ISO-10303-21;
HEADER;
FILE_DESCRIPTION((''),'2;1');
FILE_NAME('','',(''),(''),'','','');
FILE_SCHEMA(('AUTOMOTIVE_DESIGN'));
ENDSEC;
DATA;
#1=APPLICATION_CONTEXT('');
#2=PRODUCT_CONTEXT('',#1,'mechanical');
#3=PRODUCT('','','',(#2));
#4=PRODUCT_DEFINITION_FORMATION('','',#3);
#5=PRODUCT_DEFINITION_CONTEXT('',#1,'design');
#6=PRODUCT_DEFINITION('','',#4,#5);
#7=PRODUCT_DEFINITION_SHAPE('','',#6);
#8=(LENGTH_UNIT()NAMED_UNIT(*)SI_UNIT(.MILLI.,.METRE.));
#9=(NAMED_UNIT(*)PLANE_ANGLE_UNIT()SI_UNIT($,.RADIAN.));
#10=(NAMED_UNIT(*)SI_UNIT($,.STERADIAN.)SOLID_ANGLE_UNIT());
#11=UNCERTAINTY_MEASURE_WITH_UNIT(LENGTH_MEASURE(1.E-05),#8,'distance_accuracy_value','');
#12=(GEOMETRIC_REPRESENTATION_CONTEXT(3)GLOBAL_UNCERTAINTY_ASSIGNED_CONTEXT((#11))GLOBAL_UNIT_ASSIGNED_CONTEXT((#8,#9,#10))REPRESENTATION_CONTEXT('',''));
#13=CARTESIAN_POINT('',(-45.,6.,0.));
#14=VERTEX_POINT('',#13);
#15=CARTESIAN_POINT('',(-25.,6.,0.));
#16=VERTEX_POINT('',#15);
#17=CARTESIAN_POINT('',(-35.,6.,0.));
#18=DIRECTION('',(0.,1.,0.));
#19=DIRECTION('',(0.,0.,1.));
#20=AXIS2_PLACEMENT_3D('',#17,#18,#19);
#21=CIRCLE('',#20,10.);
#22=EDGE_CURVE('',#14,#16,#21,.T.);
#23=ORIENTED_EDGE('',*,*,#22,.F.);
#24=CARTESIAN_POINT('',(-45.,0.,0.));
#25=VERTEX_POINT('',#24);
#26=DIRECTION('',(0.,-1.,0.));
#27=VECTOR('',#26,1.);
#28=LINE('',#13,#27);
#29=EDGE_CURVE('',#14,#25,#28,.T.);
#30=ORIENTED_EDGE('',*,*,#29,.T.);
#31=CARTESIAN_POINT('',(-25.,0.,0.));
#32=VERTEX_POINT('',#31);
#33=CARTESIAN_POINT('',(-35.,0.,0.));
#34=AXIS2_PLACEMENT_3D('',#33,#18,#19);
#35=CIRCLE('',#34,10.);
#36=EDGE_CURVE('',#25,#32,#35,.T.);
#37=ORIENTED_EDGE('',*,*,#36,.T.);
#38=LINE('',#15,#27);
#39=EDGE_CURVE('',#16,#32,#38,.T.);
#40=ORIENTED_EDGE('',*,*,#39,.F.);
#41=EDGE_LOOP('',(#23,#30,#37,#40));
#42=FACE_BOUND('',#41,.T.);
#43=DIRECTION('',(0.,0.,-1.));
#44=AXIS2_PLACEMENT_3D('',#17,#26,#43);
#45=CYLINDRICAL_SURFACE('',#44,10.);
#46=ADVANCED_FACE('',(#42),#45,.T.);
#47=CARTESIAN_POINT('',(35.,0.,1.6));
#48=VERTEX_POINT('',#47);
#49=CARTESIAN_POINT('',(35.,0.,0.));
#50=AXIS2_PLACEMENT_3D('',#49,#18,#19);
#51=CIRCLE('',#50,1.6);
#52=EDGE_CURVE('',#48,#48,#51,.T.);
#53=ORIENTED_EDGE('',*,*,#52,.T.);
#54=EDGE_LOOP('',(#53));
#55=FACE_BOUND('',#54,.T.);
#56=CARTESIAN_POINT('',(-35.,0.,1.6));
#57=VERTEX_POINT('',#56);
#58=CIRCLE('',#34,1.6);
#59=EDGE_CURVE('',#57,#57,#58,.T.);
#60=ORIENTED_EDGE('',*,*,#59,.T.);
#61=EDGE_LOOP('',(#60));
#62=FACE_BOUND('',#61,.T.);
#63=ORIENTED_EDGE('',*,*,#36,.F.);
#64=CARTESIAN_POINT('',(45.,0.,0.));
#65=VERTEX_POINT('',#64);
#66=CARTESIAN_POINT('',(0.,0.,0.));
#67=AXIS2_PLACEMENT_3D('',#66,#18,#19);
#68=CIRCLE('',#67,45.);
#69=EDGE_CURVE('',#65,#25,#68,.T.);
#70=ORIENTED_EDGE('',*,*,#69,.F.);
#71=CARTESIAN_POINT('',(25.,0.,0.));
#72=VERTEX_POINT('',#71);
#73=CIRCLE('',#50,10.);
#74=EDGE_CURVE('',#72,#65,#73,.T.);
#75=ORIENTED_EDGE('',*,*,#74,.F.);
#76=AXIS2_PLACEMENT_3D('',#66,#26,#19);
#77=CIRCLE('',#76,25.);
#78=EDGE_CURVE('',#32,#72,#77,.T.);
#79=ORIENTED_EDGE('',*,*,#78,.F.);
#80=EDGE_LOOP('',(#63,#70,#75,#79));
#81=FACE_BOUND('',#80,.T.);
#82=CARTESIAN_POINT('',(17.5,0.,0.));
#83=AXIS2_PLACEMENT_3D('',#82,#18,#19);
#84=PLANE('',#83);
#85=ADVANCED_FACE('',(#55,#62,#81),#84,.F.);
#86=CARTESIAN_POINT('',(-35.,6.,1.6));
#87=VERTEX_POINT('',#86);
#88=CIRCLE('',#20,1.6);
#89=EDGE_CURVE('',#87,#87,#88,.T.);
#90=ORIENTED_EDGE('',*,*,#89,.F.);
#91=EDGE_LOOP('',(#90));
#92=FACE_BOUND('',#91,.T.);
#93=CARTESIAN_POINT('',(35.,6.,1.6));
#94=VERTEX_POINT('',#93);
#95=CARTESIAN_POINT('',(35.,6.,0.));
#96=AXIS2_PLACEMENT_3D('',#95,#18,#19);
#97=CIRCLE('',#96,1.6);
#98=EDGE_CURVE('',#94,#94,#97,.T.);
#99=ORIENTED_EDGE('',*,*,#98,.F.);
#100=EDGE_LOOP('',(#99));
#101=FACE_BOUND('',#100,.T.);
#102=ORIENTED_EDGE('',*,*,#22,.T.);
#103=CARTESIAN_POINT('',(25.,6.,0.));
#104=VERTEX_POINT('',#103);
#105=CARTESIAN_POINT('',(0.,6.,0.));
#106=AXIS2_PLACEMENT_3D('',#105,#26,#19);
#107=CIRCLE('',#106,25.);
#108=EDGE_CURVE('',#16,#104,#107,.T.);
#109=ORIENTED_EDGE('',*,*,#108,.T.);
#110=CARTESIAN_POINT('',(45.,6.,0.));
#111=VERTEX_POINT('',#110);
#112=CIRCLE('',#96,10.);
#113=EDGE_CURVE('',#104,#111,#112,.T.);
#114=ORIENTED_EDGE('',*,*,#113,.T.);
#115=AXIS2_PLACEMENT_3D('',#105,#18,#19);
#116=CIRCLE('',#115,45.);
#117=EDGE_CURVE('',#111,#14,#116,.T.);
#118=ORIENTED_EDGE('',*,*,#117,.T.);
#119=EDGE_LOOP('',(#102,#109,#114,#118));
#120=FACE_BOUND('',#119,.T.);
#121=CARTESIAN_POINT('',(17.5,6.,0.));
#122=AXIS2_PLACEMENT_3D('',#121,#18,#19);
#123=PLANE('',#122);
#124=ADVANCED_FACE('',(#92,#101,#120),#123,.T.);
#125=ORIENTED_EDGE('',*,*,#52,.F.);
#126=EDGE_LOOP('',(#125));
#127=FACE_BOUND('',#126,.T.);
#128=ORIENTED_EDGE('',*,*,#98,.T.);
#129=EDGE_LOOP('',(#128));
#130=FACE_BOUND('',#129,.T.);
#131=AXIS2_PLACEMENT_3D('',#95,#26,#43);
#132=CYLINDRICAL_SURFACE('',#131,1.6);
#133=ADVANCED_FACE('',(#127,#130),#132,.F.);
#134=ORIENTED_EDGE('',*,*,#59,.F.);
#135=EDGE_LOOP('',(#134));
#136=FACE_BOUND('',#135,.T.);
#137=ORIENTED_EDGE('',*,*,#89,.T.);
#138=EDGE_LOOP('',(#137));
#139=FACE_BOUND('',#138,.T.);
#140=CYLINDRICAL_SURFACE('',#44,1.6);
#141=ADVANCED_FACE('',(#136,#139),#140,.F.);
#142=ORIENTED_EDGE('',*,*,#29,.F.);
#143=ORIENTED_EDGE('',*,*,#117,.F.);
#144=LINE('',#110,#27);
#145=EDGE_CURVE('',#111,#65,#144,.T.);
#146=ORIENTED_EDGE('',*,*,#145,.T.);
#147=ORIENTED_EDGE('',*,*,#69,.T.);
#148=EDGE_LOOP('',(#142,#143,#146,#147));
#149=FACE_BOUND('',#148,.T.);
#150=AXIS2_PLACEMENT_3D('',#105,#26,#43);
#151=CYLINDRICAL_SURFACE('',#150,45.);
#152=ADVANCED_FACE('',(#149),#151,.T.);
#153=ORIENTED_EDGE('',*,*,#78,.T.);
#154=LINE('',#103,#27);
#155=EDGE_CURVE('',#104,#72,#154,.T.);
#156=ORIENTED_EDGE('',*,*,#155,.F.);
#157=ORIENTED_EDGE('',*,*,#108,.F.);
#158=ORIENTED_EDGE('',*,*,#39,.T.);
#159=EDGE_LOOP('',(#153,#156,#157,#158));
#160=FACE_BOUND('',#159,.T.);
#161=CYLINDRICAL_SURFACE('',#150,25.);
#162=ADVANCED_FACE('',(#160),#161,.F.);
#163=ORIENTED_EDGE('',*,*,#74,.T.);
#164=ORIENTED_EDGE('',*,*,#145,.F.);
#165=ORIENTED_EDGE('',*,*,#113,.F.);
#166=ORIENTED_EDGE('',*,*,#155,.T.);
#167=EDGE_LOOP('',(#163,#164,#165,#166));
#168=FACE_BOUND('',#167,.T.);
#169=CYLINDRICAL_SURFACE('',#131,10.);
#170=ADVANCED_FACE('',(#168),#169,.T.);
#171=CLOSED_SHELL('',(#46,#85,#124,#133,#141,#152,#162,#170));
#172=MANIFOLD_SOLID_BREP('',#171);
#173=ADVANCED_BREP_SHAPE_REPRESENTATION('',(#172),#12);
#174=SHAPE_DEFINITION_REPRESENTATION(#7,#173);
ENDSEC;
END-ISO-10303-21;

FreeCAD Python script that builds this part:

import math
import FreeCAD as App
import Part
import Sketcher
Q = App.Units.Quantity

doc = App.newDocument("Part")
body = doc.addObject("PartDesign::Body", "Body")

# Sketch on XZ plane
sketch1 = body.newObject("Sketcher::SketchObject", "Sketch")
sketch1.AttachmentSupport = (doc.getObject("XZ_Plane"), [""])
sketch1.MapMode = "FlatFace"
sketch1.addGeometry(Part.ArcOfCircle(Part.Circle(App.Vector(0, 0, 0), App.Vector(0, 0, 1), 25), math.radians(180), math.radians(360)), False)
sketch1.addGeometry(Part.ArcOfCircle(Part.Circle(App.Vector(35, 0, 0), App.Vector(0, 0, 1), 10), math.radians(0), math.radians(180)), False)
sketch1.addGeometry(Part.ArcOfCircle(Part.Circle(App.Vector(0, 0, 0), App.Vector(0, 0, 1), 45), math.radians(180), math.radians(360)), False)
sketch1.addGeometry(Part.ArcOfCircle(Part.Circle(App.Vector(-35, 0, 0), App.Vector(0, 0, 1), 10), math.radians(0), math.radians(180)), False)
sketch1.addGeometry(Part.Circle(App.Vector(35, 0, 0), App.Vector(0, 0, 1), 1.6), False)
sketch1.addGeometry(Part.Circle(App.Vector(-35, 0, 0), App.Vector(0, 0, 1), 1.6), False)
sketch1.addConstraint(Sketcher.Constraint("Tangent", 0, 2, 1, 2))
sketch1.addConstraint(Sketcher.Constraint("Tangent", 1, 1, 2, 2))
sketch1.addConstraint(Sketcher.Constraint("Tangent", 2, 1, 3, 2))
sketch1.addConstraint(Sketcher.Constraint("Tangent", 3, 1, 0, 1))
sketch1.addConstraint(Sketcher.Constraint("Coincident", 0, 3, -1, 1))
sketch1.addConstraint(Sketcher.Constraint("Coincident", 2, 3, -1, 1))
sketch1.addConstraint(Sketcher.Constraint("Coincident", 4, 3, 1, 3))
sketch1.addConstraint(Sketcher.Constraint("Coincident", 5, 3, 3, 3))
sketch1.addConstraint(Sketcher.Constraint("Equal", 4, 5))
sketch1.addConstraint(Sketcher.Constraint("PointOnObject", 1, 3, -1))
sketch1.addConstraint(Sketcher.Constraint("PointOnObject", 3, 3, -1))
sketch1.addConstraint(Sketcher.Constraint("Radius", 0, Q("25 mm")))
sketch1.addConstraint(Sketcher.Constraint("Radius", 1, Q("10 mm")))
sketch1.addConstraint(Sketcher.Constraint("Diameter", 4, Q("3.2 mm")))
pad1 = body.newObject("PartDesign::Pad", "Pad")
pad1.Profile = sketch1
pad1.Length = 6
pad1.Reversed = True

doc.recompute()
